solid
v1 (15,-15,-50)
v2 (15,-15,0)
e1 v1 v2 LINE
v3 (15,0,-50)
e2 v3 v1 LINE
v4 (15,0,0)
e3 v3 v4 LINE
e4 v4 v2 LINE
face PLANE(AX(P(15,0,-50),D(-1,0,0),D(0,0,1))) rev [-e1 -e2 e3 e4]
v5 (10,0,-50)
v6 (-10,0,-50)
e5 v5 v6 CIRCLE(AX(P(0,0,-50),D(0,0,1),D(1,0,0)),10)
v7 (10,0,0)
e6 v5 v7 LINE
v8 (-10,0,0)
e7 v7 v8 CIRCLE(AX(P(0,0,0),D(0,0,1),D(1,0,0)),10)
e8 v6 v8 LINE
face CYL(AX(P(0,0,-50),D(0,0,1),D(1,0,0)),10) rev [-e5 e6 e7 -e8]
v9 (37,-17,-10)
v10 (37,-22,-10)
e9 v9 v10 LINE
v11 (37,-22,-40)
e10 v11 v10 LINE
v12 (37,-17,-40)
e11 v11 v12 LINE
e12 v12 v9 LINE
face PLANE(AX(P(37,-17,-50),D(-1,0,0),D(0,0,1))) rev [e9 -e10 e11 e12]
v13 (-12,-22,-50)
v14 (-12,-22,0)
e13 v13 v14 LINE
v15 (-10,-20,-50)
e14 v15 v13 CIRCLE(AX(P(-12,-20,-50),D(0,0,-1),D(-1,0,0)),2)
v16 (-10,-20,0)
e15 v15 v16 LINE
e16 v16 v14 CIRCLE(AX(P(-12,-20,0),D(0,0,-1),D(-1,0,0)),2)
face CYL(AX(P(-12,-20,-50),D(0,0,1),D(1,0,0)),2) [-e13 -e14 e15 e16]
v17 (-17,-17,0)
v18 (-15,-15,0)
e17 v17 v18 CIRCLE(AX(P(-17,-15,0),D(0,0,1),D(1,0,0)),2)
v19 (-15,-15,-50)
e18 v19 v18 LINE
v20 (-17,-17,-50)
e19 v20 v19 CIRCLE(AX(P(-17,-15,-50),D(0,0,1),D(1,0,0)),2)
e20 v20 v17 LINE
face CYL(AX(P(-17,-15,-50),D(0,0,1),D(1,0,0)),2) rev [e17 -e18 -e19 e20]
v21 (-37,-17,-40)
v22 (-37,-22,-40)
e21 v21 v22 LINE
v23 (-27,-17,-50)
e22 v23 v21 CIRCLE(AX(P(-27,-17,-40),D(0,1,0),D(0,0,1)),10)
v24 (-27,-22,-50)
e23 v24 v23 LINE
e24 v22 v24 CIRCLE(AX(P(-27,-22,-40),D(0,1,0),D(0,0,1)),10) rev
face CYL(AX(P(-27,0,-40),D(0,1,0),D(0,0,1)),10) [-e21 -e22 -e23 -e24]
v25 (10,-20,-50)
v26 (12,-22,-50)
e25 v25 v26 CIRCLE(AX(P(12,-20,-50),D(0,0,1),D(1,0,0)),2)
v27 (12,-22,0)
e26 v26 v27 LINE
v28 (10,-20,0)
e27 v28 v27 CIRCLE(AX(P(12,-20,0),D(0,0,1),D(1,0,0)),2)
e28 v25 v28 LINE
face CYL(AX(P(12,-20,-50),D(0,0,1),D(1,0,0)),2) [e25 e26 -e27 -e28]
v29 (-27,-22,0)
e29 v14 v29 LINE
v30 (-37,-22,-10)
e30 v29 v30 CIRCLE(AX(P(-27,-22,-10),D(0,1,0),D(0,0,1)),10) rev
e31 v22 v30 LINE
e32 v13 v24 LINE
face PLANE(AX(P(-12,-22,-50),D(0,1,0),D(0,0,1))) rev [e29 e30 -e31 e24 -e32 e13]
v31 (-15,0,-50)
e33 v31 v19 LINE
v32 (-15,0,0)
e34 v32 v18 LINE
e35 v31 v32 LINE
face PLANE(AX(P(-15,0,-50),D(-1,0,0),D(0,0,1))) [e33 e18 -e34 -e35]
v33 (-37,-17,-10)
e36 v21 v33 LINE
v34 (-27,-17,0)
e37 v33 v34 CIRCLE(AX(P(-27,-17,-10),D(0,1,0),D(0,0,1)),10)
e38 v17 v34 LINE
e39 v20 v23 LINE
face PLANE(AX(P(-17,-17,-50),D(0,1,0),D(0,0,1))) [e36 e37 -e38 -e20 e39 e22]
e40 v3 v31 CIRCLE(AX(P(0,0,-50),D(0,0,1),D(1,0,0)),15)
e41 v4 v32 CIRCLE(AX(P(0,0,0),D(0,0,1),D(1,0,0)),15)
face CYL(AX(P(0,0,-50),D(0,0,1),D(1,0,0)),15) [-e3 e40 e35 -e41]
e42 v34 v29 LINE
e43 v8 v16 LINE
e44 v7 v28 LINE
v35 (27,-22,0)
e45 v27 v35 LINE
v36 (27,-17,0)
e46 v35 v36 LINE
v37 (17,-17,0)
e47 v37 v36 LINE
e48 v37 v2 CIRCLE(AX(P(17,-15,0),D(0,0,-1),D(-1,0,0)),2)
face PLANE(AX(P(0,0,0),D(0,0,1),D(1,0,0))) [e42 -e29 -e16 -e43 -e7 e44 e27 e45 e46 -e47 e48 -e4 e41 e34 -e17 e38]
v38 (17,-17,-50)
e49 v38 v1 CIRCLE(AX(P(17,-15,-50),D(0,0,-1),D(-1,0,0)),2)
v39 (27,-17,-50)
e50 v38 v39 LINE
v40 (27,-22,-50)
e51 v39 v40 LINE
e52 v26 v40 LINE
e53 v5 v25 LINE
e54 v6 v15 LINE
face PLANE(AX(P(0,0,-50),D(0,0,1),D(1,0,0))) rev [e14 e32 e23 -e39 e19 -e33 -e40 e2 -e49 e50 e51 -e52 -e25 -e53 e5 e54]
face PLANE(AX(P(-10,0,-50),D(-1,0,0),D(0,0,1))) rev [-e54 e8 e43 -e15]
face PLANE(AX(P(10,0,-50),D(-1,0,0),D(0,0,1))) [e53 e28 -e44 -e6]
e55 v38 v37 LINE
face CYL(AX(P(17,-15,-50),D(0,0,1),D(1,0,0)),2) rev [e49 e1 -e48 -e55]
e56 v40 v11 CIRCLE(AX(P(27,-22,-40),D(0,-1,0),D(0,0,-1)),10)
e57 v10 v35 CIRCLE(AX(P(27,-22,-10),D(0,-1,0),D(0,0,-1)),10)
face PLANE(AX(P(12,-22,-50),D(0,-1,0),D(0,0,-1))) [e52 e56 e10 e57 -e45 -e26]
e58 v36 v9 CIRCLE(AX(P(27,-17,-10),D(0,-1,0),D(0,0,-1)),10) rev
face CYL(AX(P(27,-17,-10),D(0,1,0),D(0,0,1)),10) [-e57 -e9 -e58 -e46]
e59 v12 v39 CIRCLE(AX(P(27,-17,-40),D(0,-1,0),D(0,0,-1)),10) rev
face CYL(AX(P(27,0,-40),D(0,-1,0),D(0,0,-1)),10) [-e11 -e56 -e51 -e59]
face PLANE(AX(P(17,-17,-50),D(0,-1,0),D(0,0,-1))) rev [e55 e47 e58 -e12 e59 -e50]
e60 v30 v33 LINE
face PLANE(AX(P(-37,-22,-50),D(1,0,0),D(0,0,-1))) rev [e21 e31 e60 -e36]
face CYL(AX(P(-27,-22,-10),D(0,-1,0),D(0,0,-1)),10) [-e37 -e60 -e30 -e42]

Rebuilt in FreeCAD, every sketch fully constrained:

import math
import FreeCAD as App
import Part
import Sketcher
Q = App.Units.Quantity


def edges_at(feature, points):
    """Names of the edges that pass closest to the given points."""
    edges = feature.Shape.Edges
    near = lambda p: min(range(len(edges)), key=lambda i: edges[i].distToShape(Part.Vertex(*p))[0])
    return sorted({f"Edge{near(p) + 1}" for p in points})

doc = App.newDocument("Part")
body = doc.addObject("PartDesign::Body", "Body")

# Sketch on XY plane
sketch1 = body.newObject("Sketcher::SketchObject", "Sketch")
sketch1.AttachmentSupport = (doc.getObject("XY_Plane"), [""])
sketch1.MapMode = "FlatFace"
sketch1.addGeometry([
    Part.LineSegment(App.Vector(10, 0, 0), App.Vector(10, -20, 0)),  # 0
    Part.ArcOfCircle(Part.Circle(App.Vector(12, -20, 0), App.Vector(0, 0, 1), 2), math.radians(-180), math.radians(-90)),  # 1
    Part.LineSegment(App.Vector(12, -22, 0), App.Vector(37, -22, 0)),  # 2
    Part.LineSegment(App.Vector(37, -22, 0), App.Vector(37, -17, 0)),  # 3
    Part.LineSegment(App.Vector(37, -17, 0), App.Vector(17, -17, 0)),  # 4
    Part.ArcOfCircle(Part.Circle(App.Vector(17, -15, 0), App.Vector(0, 0, 1), 2), math.radians(-180), math.radians(-90)),  # 5
    Part.LineSegment(App.Vector(15, -15, 0), App.Vector(15, 0, 0)),  # 6
    Part.ArcOfCircle(Part.Circle(App.Vector(0, 0, 0), App.Vector(0, 0, 1), 15), math.radians(0), math.radians(180)),  # 7
    Part.LineSegment(App.Vector(-15, 0, 0), App.Vector(-15, -15, 0)),  # 8
    Part.ArcOfCircle(Part.Circle(App.Vector(-17, -15, 0), App.Vector(0, 0, 1), 2), math.radians(-90), math.radians(0)),  # 9
    Part.LineSegment(App.Vector(-17, -17, 0), App.Vector(-37, -17, 0)),  # 10
    Part.LineSegment(App.Vector(-37, -17, 0), App.Vector(-37, -22, 0)),  # 11
    Part.LineSegment(App.Vector(-37, -22, 0), App.Vector(-12, -22, 0)),  # 12
    Part.ArcOfCircle(Part.Circle(App.Vector(-12, -20, 0), App.Vector(0, 0, 1), 2), math.radians(-90), math.radians(0)),  # 13
    Part.LineSegment(App.Vector(-10, -20, 0), App.Vector(-10, 0, 0)),  # 14
    Part.ArcOfCircle(Part.Circle(App.Vector(0, 0, 0), App.Vector(0, 0, 1), 10), math.radians(0), math.radians(180)),  # 15
], False)
sketch1.addConstraint([
    Sketcher.Constraint("Tangent", 0, 2, 1, 1),
    Sketcher.Constraint("Tangent", 1, 2, 2, 1),
    Sketcher.Constraint("Coincident", 2, 2, 3, 1),
    Sketcher.Constraint("Coincident", 3, 2, 4, 1),
    Sketcher.Constraint("Tangent", 4, 2, 5, 2),
    Sketcher.Constraint("Tangent", 5, 1, 6, 1),
    Sketcher.Constraint("Tangent", 6, 2, 7, 1),
    Sketcher.Constraint("Tangent", 7, 2, 8, 1),
    Sketcher.Constraint("Tangent", 8, 2, 9, 2),
    Sketcher.Constraint("Tangent", 9, 1, 10, 1),
    Sketcher.Constraint("Coincident", 10, 2, 11, 1),
    Sketcher.Constraint("Coincident", 11, 2, 12, 1),
    Sketcher.Constraint("Tangent", 12, 2, 13, 1),
    Sketcher.Constraint("Tangent", 13, 2, 14, 1),
    Sketcher.Constraint("Tangent", 14, 2, 15, 2),
    Sketcher.Constraint("Tangent", 15, 1, 0, 1),
    Sketcher.Constraint("Vertical", 0),
    Sketcher.Constraint("Horizontal", 2),
    Sketcher.Constraint("Vertical", 3),
    Sketcher.Constraint("Horizontal", 4),
    Sketcher.Constraint("Vertical", 6),
    Sketcher.Constraint("Vertical", 8),
    Sketcher.Constraint("Horizontal", 10),
    Sketcher.Constraint("Vertical", 11),
    Sketcher.Constraint("Horizontal", 12),
    Sketcher.Constraint("Vertical", 14),
    Sketcher.Constraint("Coincident", 7, 3, -1, 1),
    Sketcher.Constraint("Coincident", 15, 3, -1, 1),
    Sketcher.Constraint("Equal", 1, 5),
    Sketcher.Constraint("Equal", 5, 9),
    Sketcher.Constraint("Equal", 9, 13),
    Sketcher.Constraint("Symmetric", 3, 2, 10, 2, -2),
    Sketcher.Constraint("Horizontal", 1, 3, 13, 3),
    Sketcher.Constraint("Equal", 10, 0),
    Sketcher.Constraint("Radius", 1, Q("2 mm")),
    Sketcher.Constraint("Radius", 7, Q("15 mm")),
    Sketcher.Constraint("Radius", 15, Q("10 mm")),
    Sketcher.Constraint("DistanceX", 2, 1, 2, 2, Q("25 mm")),
    Sketcher.Constraint("DistanceY", 3, 1, 3, 2, Q("5 mm")),
])
pad1 = body.newObject("PartDesign::Pad", "Pad")
pad1.Profile = sketch1
pad1.Length = 50
pad1.Reversed = True
doc.recompute()

fillet = body.newObject("PartDesign::Fillet", "Fillet")
fillet.Base = (pad1, edges_at(pad1, [
    (37, -19.5, 0),
    (-37, -19.5, 0),
    (-37, -19.5, -50),
    (37, -19.5, -50),
]))
fillet.Radius = 10

doc.recompute()
